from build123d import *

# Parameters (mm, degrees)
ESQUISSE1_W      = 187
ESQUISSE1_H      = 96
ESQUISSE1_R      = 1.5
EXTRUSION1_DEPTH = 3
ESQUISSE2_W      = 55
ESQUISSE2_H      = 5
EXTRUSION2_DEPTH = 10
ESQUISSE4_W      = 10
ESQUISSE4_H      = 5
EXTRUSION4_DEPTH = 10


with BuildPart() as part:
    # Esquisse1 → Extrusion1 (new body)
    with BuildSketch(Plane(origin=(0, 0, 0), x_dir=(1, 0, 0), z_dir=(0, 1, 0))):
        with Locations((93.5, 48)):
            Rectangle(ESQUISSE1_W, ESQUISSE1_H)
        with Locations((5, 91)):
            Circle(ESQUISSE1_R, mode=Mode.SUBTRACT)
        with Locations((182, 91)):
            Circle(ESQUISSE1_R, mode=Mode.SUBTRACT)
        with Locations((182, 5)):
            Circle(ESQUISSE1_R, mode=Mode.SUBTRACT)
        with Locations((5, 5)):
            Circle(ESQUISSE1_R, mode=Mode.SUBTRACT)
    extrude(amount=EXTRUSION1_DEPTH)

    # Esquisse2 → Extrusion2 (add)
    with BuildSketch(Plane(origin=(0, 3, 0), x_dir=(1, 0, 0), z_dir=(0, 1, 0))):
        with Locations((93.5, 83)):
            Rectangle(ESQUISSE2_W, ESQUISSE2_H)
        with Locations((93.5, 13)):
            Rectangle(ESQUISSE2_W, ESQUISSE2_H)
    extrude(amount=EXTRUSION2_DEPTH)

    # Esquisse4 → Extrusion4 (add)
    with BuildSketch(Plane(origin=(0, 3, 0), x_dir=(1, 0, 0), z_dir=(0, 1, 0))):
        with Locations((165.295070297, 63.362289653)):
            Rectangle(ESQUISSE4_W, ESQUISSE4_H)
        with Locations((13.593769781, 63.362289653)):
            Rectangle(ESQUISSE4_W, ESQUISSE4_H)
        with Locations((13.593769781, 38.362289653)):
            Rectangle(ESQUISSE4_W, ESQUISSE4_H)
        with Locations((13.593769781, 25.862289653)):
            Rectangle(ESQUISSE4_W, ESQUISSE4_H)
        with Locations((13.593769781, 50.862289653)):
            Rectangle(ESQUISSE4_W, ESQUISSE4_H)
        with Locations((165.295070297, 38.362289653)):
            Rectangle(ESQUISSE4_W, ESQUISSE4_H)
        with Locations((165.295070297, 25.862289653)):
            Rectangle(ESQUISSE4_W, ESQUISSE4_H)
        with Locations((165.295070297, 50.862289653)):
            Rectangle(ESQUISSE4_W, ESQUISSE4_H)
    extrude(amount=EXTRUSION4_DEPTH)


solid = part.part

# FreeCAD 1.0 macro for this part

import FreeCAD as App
import Part
import Sketcher
from FreeCAD import Vector


def add_polygon(sketch, points):
    """Adds a closed chain of lines whose ends are joined by coincident constraints."""
    first, n = sketch.GeometryCount, len(points)
    for a, b in zip(points, points[1:] + points[:1]):
        sketch.addGeometry(Part.LineSegment(App.Vector(*a, 0), App.Vector(*b, 0)), False)
    for i in range(n):
        sketch.addConstraint(Sketcher.Constraint("Coincident", first + i, 2, first + (i + 1) % n, 1))

doc = App.newDocument("Part")
body = doc.addObject("PartDesign::Body", "Body")

sketch1 = doc.addObject("Sketcher::SketchObject", "Sketch")
body.addObject(sketch1)
sketch1.AttachmentSupport = (doc.XZ_Plane, [""])
sketch1.MapMode = "FlatFace"
add_polygon(sketch1, [(0, -96), (0, 0), (187, 0), (187, -96)])
sketch1.addGeometry(Part.Circle(Vector(5, -5, 0), Vector(0, 0, 1), 1.5), False)
sketch1.addGeometry(Part.Circle(Vector(182, -5, 0), Vector(0, 0, 1), 1.5), False)
sketch1.addGeometry(Part.Circle(Vector(5, -91, 0), Vector(0, 0, 1), 1.5), False)
sketch1.addGeometry(Part.Circle(Vector(182, -91, 0), Vector(0, 0, 1), 1.5), False)
sketch1.addConstraint(Sketcher.Constraint("Vertical", 0))
sketch1.addConstraint(Sketcher.Constraint("Horizontal", 1))
sketch1.addConstraint(Sketcher.Constraint("Vertical", 2))
sketch1.addConstraint(Sketcher.Constraint("Horizontal", 3))
sketch1.addConstraint(Sketcher.Constraint("Coincident", 0, 2, -1, 1))
sketch1.addConstraint(Sketcher.Constraint("Equal", 4, 5))
sketch1.addConstraint(Sketcher.Constraint("Equal", 5, 6))
sketch1.addConstraint(Sketcher.Constraint("Equal", 6, 7))
sketch1.addConstraint(Sketcher.Constraint("Horizontal", 4, 3, 5, 3))
sketch1.addConstraint(Sketcher.Constraint("Horizontal", 6, 3, 7, 3))
sketch1.addConstraint(Sketcher.Constraint("Vertical", 4, 3, 6, 3))
sketch1.addConstraint(Sketcher.Constraint("Vertical", 5, 3, 7, 3))
sketch1.addConstraint(Sketcher.Constraint("Diameter", 4, 3.0))
sketch1.addConstraint(Sketcher.Constraint("DistanceX", 1, 1, 1, 2, 187.0))
sketch1.addConstraint(Sketcher.Constraint("DistanceY", 0, 1, 0, 2, 96.0))
sketch1.addConstraint(Sketcher.Constraint("DistanceX", -1, 1, 4, 3, 5.0))
sketch1.addConstraint(Sketcher.Constraint("DistanceY", 4, 3, -1, 1, 5.0))
sketch1.addConstraint(Sketcher.Constraint("DistanceX", -1, 1, 5, 3, 182.0))
sketch1.addConstraint(Sketcher.Constraint("DistanceY", 6, 3, -1, 1, 91.0))
pad1 = doc.addObject("PartDesign::Pad", "Pad")
body.addObject(pad1)
pad1.Profile = sketch1
pad1.Length = 3
pad1.Reversed = True

sketch2 = doc.addObject("Sketcher::SketchObject", "Sketch001")
body.addObject(sketch2)
sketch2.AttachmentSupport = (doc.XZ_Plane, [""])
sketch2.MapMode = "FlatFace"
sketch2.AttachmentOffset = App.Placement(Vector(0, 0, -3), App.Rotation())
add_polygon(sketch2, [(66, -86), (66, -80), (121, -80), (121, -86)])
add_polygon(sketch2, [(66, -16), (66, -10), (121, -10), (121, -16)])
sketch2.addConstraint(Sketcher.Constraint("Vertical", 0))
sketch2.addConstraint(Sketcher.Constraint("Horizontal", 1))
sketch2.addConstraint(Sketcher.Constraint("Vertical", 2))
sketch2.addConstraint(Sketcher.Constraint("Horizontal", 3))
sketch2.addConstraint(Sketcher.Constraint("Vertical", 4))
sketch2.addConstraint(Sketcher.Constraint("Horizontal", 5))
sketch2.addConstraint(Sketcher.Constraint("Vertical", 6))
sketch2.addConstraint(Sketcher.Constraint("Horizontal", 7))
sketch2.addConstraint(Sketcher.Constraint("Vertical", 3, 2, 4, 2))
sketch2.addConstraint(Sketcher.Constraint("Vertical", 2, 2, 5, 2))
sketch2.addConstraint(Sketcher.Constraint("Equal", 2, 4))
sketch2.addConstraint(Sketcher.Constraint("DistanceX", 1, 1, 1, 2, 55.0))
sketch2.addConstraint(Sketcher.Constraint("DistanceY", 0, 1, 0, 2, 5.0))
sketch2.addConstraint(Sketcher.Constraint("DistanceX", -1, 1, 0, 2, 66.0))
sketch2.addConstraint(Sketcher.Constraint("DistanceY", 0, 2, 4, 2, 70.0))
sketch2.addConstraint(Sketcher.Constraint("DistanceY", 0, 2, -1, 1, 80.5))
pad2 = doc.addObject("PartDesign::Pad", "Pad001")
body.addObject(pad2)
pad2.Profile = sketch2
pad2.Length = 10
pad2.Reversed = True

sketch3 = doc.addObject("Sketcher::SketchObject", "Sketch002")
body.addObject(sketch3)
sketch3.AttachmentSupport = (doc.XZ_Plane, [""])
sketch3.MapMode = "FlatFace"
sketch3.AttachmentOffset = App.Placement(Vector(0, 0, -3), App.Rotation())
add_polygon(sketch3, [(160, -66), (160, -61), (170, -61), (170, -66)])
add_polygon(sketch3, [(9, -66), (9, -61), (19, -61), (19, -66)])
add_polygon(sketch3, [(9, -41), (9, -36), (19, -36), (19, -41)])
add_polygon(sketch3, [(9, -28), (9, -23), (19, -23), (19, -28)])
add_polygon(sketch3, [(9, -53), (9, -48), (19, -48), (19, -53)])
add_polygon(sketch3, [(160, -41), (160, -36), (170, -36), (170, -41)])
add_polygon(sketch3, [(160, -28), (160, -23), (170, -23), (170, -28)])
add_polygon(sketch3, [(160, -53), (160, -48), (170, -48), (170, -53)])
sketch3.addConstraint(Sketcher.Constraint("Vertical", 0))
sketch3.addConstraint(Sketcher.Constraint("Horizontal", 1))
sketch3.addConstraint(Sketcher.Constraint("Vertical", 2))
sketch3.addConstraint(Sketcher.Constraint("Horizontal", 3))
sketch3.addConstraint(Sketcher.Constraint("Vertical", 4))
sketch3.addConstraint(Sketcher.Constraint("Horizontal", 5))
sketch3.addConstraint(Sketcher.Constraint("Vertical", 6))
sketch3.addConstraint(Sketcher.Constraint("Horizontal", 7))
sketch3.addConstraint(Sketcher.Constraint("Vertical", 8))
sketch3.addConstraint(Sketcher.Constraint("Horizontal", 9))
sketch3.addConstraint(Sketcher.Constraint("Vertical", 10))
sketch3.addConstraint(Sketcher.Constraint("Horizontal", 11))
sketch3.addConstraint(Sketcher.Constraint("Vertical", 12))
sketch3.addConstraint(Sketcher.Constraint("Horizontal", 13))
sketch3.addConstraint(Sketcher.Constraint("Vertical", 14))
sketch3.addConstraint(Sketcher.Constraint("Horizontal", 15))
sketch3.addConstraint(Sketcher.Constraint("Vertical", 16))
sketch3.addConstraint(Sketcher.Constraint("Horizontal", 17))
sketch3.addConstraint(Sketcher.Constraint("Vertical", 18))
sketch3.addConstraint(Sketcher.Constraint("Horizontal", 19))
sketch3.addConstraint(Sketcher.Constraint("Vertical", 20))
sketch3.addConstraint(Sketcher.Constraint("Horizontal", 21))
sketch3.addConstraint(Sketcher.Constraint("Vertical", 22))
sketch3.addConstraint(Sketcher.Constraint("Horizontal", 23))
sketch3.addConstraint(Sketcher.Constraint("Vertical", 24))
sketch3.addConstraint(Sketcher.Constraint("Horizontal", 25))
sketch3.addConstraint(Sketcher.Constraint("Vertical", 26))
sketch3.addConstraint(Sketcher.Constraint("Horizontal", 27))
sketch3.addConstraint(Sketcher.Constraint("Vertical", 28))
sketch3.addConstraint(Sketcher.Constraint("Horizontal", 29))
sketch3.addConstraint(Sketcher.Constraint("Vertical", 30))
sketch3.addConstraint(Sketcher.Constraint("Horizontal", 31))
sketch3.addConstraint(Sketcher.Constraint("Horizontal", 1, 2, 4, 2))
sketch3.addConstraint(Sketcher.Constraint("Horizontal", 3, 2, 6, 2))
sketch3.addConstraint(Sketcher.Constraint("Horizontal", 9, 2, 20, 2))
sketch3.addConstraint(Sketcher.Constraint("Horizontal", 11, 2, 22, 2))
sketch3.addConstraint(Sketcher.Constraint("Horizontal", 13, 2, 24, 2))
sketch3.addConstraint(Sketcher.Constraint("Horizontal", 15, 2, 26, 2))
sketch3.addConstraint(Sketcher.Constraint("Horizontal", 17, 2, 28, 2))
sketch3.addConstraint(Sketcher.Constraint("Horizontal", 19, 2, 30, 2))
sketch3.addConstraint(Sketcher.Constraint("Vertical", 7, 2, 8, 2))
sketch3.addConstraint(Sketcher.Constraint("Vertical", 6, 2, 9, 2))
sketch3.addConstraint(Sketcher.Constraint("Vertical", 11, 2, 12, 2))
sketch3.addConstraint(Sketcher.Constraint("Vertical", 10, 2, 13, 2))
sketch3.addConstraint(Sketcher.Constraint("Vertical", 15, 2, 16, 2))
sketch3.addConstraint(Sketcher.Constraint("Vertical", 14, 2, 17, 2))
sketch3.addConstraint(Sketcher.Constraint("Vertical", 3, 2, 20, 2))
sketch3.addConstraint(Sketcher.Constraint("Vertical", 2, 2, 21, 2))
sketch3.addConstraint(Sketcher.Constraint("Vertical", 23, 2, 24, 2))
sketch3.addConstraint(Sketcher.Constraint("Vertical", 22, 2, 25, 2))
sketch3.addConstraint(Sketcher.Constraint("Vertical", 27, 2, 28, 2))
sketch3.addConstraint(Sketcher.Constraint("Vertical", 26, 2, 29, 2))
sketch3.addConstraint(Sketcher.Constraint("Equal", 3, 5))
sketch3.addConstraint(Sketcher.Constraint("Equal", 6, 8))
sketch3.addConstraint(Sketcher.Constraint("Equal", 10, 12))
sketch3.addConstraint(Sketcher.Constraint("Equal", 14, 16))
sketch3.addConstraint(Sketcher.Constraint("DistanceX", 1, 1, 1, 2, 10.0))
sketch3.addConstraint(Sketcher.Constraint("DistanceY", 0, 1, 0, 2, 5.0))
sketch3.addConstraint(Sketcher.Constraint("DistanceY", 4, 2, 8, 2, 25.0))
sketch3.addConstraint(Sketcher.Constraint("DistanceY", 8, 2, 12, 2, 12.5))
sketch3.addConstraint(Sketcher.Constraint("DistanceY", 16, 2, 11, 2, 7.5))
sketch3.addConstraint(Sketcher.Constraint("DistanceX", 4, 2, 0, 2, 151.701301))
sketch3.addConstraint(Sketcher.Constraint("DistanceX", -1, 1, 0, 2, 160.29507))
sketch3.addConstraint(Sketcher.Constraint("DistanceY", 0, 2, -1, 1, 60.86229))
pad3 = doc.addObject("PartDesign::Pad", "Pad002")
body.addObject(pad3)
pad3.Profile = sketch3
pad3.Length = 10
pad3.Reversed = True

doc.recompute()
